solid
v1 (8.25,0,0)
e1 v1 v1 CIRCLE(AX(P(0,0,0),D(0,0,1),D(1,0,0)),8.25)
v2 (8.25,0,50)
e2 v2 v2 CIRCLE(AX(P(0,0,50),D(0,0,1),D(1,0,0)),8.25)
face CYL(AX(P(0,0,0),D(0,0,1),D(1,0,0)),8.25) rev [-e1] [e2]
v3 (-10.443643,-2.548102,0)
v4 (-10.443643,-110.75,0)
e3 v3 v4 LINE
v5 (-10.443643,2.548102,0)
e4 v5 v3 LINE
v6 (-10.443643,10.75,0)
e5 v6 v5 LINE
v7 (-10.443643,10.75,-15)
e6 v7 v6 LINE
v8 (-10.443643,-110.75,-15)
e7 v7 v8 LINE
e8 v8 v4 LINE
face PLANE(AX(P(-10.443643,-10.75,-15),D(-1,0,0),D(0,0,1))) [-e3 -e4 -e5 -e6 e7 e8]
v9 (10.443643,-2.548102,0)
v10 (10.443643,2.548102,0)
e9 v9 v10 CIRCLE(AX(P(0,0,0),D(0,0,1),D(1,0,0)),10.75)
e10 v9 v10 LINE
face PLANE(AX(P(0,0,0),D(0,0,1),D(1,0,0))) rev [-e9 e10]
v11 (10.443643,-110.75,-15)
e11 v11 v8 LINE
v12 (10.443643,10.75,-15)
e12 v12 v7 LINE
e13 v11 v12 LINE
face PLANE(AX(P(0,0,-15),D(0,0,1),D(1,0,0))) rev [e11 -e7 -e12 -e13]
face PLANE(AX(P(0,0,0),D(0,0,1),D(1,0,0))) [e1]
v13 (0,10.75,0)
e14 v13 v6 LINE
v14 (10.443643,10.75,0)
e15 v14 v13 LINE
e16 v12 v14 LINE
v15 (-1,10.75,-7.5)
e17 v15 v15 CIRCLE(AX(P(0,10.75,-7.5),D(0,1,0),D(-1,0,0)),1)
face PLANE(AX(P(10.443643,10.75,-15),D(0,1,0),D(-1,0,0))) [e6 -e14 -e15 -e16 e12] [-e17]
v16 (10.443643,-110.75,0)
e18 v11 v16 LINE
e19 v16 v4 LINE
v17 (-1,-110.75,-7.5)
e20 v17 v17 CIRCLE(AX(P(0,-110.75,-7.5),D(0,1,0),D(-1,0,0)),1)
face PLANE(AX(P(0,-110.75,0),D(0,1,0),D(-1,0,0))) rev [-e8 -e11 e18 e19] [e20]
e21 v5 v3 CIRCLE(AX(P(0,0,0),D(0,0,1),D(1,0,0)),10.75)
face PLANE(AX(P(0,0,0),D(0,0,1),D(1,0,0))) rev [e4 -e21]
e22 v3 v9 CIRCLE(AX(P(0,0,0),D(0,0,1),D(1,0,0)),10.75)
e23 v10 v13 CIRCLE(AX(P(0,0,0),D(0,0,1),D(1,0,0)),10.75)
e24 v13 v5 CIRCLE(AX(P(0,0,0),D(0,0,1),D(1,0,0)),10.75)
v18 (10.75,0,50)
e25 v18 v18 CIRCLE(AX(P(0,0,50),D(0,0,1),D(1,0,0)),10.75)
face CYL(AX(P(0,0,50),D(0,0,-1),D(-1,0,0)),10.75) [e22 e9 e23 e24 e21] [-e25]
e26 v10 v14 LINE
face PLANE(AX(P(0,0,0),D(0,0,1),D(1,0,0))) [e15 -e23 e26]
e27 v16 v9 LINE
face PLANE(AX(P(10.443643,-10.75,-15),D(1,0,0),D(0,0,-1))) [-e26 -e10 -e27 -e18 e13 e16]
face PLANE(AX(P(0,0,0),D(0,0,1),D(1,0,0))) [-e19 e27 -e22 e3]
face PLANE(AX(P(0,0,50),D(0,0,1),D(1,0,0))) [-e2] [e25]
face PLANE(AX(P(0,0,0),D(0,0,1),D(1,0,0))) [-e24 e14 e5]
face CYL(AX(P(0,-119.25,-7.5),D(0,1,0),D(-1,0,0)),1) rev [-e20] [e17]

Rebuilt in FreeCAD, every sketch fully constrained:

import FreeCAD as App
import Part
import Sketcher

V = App.Vector

doc = App.newDocument("Part")
body = doc.addObject("PartDesign::Body", "Body")

sketch1 = doc.addObject("Sketcher::SketchObject", "Sketch")
body.addObject(sketch1)
sketch1.AttachmentSupport = (doc.XY_Plane, [""])
sketch1.MapMode = "FlatFace"
sketch1.addGeometry(Part.Circle(V(0, 0, 0), V(0, 0, 1), 11), False)
sketch1.addConstraint([
    Sketcher.Constraint("Coincident", 0, 3, -1, 1),
    Sketcher.Constraint("Diameter", 0, 21.5),
])
pad1 = doc.addObject("PartDesign::Pad", "Pad")
body.addObject(pad1)
pad1.Profile = sketch1
pad1.Length = 50

sketch2 = doc.addObject("Sketcher::SketchObject", "Sketch001")
body.addObject(sketch2)
sketch2.AttachmentSupport = (doc.XY_Plane, [""])
sketch2.MapMode = "FlatFace"
sketch2.addGeometry([
    Part.LineSegment(V(-10, 11, 0), V(-10, -11, 0)),
    Part.LineSegment(V(-10, -11, 0), V(10, -11, 0)),
    Part.LineSegment(V(10, -11, 0), V(10, 11, 0)),
    Part.LineSegment(V(10, 11, 0), V(-10, 11, 0)),
], False)
sketch2.addConstraint([
    Sketcher.Constraint("Coincident", 0, 2, 1, 1),
    Sketcher.Constraint("Coincident", 1, 2, 2, 1),
    Sketcher.Constraint("Coincident", 2, 2, 3, 1),
    Sketcher.Constraint("Coincident", 3, 2, 0, 1),
    Sketcher.Constraint("Vertical", 0),
    Sketcher.Constraint("Horizontal", 1),
    Sketcher.Constraint("Vertical", 2),
    Sketcher.Constraint("Horizontal", 3),
    Sketcher.Constraint("Symmetric", 0, 2, 2, 2, -1, 1),
    Sketcher.Constraint("DistanceY", 0, 2, 0, 1, 21.5),
    Sketcher.Constraint("DistanceX", 1, 1, 1, 2, 20.887286),
])
pad2 = doc.addObject("PartDesign::Pad", "Pad001")
body.addObject(pad2)
pad2.Profile = sketch2
pad2.Length = 15
pad2.Reversed = True

sketch3 = doc.addObject("Sketcher::SketchObject", "Sketch002")
body.addObject(sketch3)
sketch3.AttachmentSupport = (doc.XZ_Plane, [""])
sketch3.MapMode = "FlatFace"
sketch3.AttachmentOffset = App.Placement(V(0, 0, 10.75), App.Rotation())
sketch3.addGeometry([
    Part.LineSegment(V(-10, 0, 0), V(-10, -15, 0)),
    Part.LineSegment(V(-10, -15, 0), V(10, -15, 0)),
    Part.LineSegment(V(10, -15, 0), V(10, 0, 0)),
    Part.LineSegment(V(10, 0, 0), V(-10, 0, 0)),
], False)
sketch3.addConstraint([
    Sketcher.Constraint("Coincident", 0, 2, 1, 1),
    Sketcher.Constraint("Coincident", 1, 2, 2, 1),
    Sketcher.Constraint("Coincident", 2, 2, 3, 1),
    Sketcher.Constraint("Coincident", 3, 2, 0, 1),
    Sketcher.Constraint("Vertical", 0),
    Sketcher.Constraint("Horizontal", 1),
    Sketcher.Constraint("Vertical", 2),
    Sketcher.Constraint("Horizontal", 3),
    Sketcher.Constraint("Symmetric", 2, 2, 3, 2, -1, 1),
    Sketcher.Constraint("DistanceY", 0, 2, 0, 1, 15.0),
    Sketcher.Constraint("DistanceX", 1, 1, 1, 2, 20.887286),
])
pad3 = doc.addObject("PartDesign::Pad", "Pad002")
body.addObject(pad3)
pad3.Profile = sketch3
pad3.Length = 100

sketch4 = doc.addObject("Sketcher::SketchObject", "Sketch003")
body.addObject(sketch4)
sketch4.AttachmentSupport = (doc.XZ_Plane, [""])
sketch4.MapMode = "FlatFace"
sketch4.AttachmentOffset = App.Placement(V(0, 0, -10.75), App.Rotation())
sketch4.addGeometry(Part.Circle(V(0, -7.5, 0), V(0, 0, 1), 1), False)
sketch4.addConstraint([
    Sketcher.Constraint("PointOnObject", 0, 3, -2),
    Sketcher.Constraint("Diameter", 0, 2.0),
    Sketcher.Constraint("DistanceY", 0, 3, -1, 1, 7.5),
])
pocket1 = doc.addObject("PartDesign::Pocket", "Pocket")
body.addObject(pocket1)
pocket1.Profile = sketch4
pocket1.Length = 130
pocket1.Reversed = True

sketch5 = doc.addObject("Sketcher::SketchObject", "Sketch004")
body.addObject(sketch5)
sketch5.AttachmentSupport = (doc.XY_Plane, [""])
sketch5.MapMode = "FlatFace"
sketch5.AttachmentOffset = App.Placement(V(0, 0, 50), App.Rotation())
sketch5.addGeometry(Part.Circle(V(0, 0, 0), V(0, 0, 1), 8), False)
sketch5.addConstraint([
    Sketcher.Constraint("Coincident", 0, 3, -1, 1),
    Sketcher.Constraint("Diameter", 0, 16.5),
])
pocket2 = doc.addObject("PartDesign::Pocket", "Pocket001")
body.addObject(pocket2)
pocket2.Profile = sketch5
pocket2.Length = 50

doc.recompute()
